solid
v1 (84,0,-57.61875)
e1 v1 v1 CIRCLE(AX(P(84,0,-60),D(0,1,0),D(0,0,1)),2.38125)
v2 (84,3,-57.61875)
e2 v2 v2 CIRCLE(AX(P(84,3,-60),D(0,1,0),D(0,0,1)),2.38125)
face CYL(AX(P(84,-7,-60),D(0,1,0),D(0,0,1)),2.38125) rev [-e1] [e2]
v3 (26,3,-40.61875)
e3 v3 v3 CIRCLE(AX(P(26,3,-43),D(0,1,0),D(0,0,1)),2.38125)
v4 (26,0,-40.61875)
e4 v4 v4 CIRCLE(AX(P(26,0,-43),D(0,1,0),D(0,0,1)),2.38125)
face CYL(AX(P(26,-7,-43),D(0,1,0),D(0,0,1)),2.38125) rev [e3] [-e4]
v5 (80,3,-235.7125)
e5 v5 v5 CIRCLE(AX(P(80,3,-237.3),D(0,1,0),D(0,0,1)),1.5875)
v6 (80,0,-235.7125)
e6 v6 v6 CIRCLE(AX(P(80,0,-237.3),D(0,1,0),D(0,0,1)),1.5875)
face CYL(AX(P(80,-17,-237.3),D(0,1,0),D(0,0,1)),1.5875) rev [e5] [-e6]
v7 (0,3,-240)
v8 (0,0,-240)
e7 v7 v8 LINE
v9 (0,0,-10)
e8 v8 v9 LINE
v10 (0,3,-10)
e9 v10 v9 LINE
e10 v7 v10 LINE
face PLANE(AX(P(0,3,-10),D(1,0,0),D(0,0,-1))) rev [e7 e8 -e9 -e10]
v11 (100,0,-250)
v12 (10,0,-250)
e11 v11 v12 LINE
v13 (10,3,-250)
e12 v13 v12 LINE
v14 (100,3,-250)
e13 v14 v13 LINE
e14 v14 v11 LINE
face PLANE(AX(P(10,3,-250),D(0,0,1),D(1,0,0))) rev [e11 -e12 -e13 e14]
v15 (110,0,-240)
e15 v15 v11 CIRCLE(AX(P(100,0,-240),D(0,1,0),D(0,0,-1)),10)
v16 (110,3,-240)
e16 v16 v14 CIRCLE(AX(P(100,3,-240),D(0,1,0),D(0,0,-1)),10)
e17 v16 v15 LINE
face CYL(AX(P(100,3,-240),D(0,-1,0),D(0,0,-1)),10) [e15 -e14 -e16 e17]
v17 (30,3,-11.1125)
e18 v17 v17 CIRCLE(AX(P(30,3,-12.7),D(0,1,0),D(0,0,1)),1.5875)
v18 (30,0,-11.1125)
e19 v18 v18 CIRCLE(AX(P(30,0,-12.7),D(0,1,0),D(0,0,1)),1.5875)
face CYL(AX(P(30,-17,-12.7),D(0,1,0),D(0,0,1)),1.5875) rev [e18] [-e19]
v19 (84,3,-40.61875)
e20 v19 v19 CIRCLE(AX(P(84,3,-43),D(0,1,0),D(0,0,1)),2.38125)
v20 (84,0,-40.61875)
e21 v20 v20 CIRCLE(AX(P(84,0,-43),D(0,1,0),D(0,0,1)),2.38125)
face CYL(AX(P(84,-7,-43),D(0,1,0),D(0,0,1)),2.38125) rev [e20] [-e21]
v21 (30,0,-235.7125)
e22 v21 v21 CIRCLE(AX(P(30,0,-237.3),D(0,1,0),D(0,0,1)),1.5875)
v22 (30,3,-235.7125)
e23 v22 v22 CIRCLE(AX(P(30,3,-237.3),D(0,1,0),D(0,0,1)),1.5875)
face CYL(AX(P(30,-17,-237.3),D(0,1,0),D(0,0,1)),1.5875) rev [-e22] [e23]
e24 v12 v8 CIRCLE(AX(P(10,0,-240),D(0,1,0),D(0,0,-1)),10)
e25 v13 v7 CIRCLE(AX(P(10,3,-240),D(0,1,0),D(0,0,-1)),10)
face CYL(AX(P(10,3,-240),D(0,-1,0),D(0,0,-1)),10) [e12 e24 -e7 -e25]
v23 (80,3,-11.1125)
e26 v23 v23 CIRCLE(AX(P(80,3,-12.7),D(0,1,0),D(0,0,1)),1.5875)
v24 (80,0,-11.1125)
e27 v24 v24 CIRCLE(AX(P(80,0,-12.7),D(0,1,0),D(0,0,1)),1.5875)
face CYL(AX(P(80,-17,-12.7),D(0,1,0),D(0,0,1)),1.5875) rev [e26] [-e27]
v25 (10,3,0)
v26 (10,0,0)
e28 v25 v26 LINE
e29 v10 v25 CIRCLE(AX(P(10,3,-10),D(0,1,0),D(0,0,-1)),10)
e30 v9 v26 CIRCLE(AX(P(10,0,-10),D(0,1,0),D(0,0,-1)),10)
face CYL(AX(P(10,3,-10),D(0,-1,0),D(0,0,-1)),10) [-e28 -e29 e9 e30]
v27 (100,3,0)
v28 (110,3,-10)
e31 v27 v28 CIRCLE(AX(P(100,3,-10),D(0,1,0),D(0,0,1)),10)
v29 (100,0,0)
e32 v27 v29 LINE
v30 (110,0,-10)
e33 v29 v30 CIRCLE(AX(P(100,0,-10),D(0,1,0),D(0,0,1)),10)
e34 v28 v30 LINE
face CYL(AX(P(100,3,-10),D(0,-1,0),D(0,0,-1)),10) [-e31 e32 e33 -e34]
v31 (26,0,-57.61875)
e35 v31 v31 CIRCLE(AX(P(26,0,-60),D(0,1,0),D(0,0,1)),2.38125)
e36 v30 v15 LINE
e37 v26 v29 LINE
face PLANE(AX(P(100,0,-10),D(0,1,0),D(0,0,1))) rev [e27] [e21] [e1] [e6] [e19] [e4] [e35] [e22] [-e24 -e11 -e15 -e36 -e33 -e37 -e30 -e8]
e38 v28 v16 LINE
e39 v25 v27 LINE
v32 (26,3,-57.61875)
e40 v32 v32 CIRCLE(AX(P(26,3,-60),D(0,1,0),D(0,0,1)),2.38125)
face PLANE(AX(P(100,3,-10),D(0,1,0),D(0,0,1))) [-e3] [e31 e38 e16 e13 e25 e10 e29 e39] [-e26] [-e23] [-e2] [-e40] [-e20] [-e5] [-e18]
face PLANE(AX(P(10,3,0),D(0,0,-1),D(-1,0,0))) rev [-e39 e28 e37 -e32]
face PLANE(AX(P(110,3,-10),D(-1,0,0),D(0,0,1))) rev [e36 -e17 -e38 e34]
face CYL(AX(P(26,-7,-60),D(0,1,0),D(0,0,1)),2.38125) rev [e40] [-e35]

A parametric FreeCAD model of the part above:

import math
import FreeCAD as App
import Part
import Sketcher

V = App.Vector

doc = App.newDocument("Part")
params = doc.addObject("Spreadsheet::Sheet", "Params")
for row, (alias, value) in enumerate([
    ("sketch1_radius", "10 mm"),
    ("sketch1_width", "90 mm"),
    ("sketch1_height", "230 mm"),
    ("pad1_length", "3 mm"),
    ("pocket1_length", "20 mm"),
    ("pocket2_length", "10 mm"),
], start=1):
    params.set(f"A{row}", alias)
    params.set(f"B{row}", "=" + value)
    params.setAlias(f"B{row}", alias)

body = doc.addObject("PartDesign::Body", "Body")

# Sketch on XZ plane
sketch1 = body.newObject("Sketcher::SketchObject", "Sketch")
sketch1.AttachmentSupport = (doc.getObject("XZ_Plane"), [""])
sketch1.MapMode = "FlatFace"
sketch1.addGeometry([
    Part.LineSegment(V(10, 0, 0), V(100, 0, 0)),  # 0
    Part.ArcOfCircle(Part.Circle(V(100, -10, 0), V(0, 0, 1), 10), math.radians(0), math.radians(90)),  # 1
    Part.LineSegment(V(110, -10, 0), V(110, -240, 0)),  # 2
    Part.ArcOfCircle(Part.Circle(V(100, -240, 0), V(0, 0, 1), 10), math.radians(-90), math.radians(0)),  # 3
    Part.LineSegment(V(100, -250, 0), V(10, -250, 0)),  # 4
    Part.ArcOfCircle(Part.Circle(V(10, -240, 0), V(0, 0, 1), 10), math.radians(180), math.radians(270)),  # 5
    Part.LineSegment(V(0, -240, 0), V(0, -10, 0)),  # 6
    Part.ArcOfCircle(Part.Circle(V(10, -10, 0), V(0, 0, 1), 10), math.radians(90), math.radians(180)),  # 7
], False)
sketch1.addConstraint([
    Sketcher.Constraint("Tangent", 0, 2, 1, 2),
    Sketcher.Constraint("Tangent", 1, 1, 2, 1),
    Sketcher.Constraint("Tangent", 2, 2, 3, 2),
    Sketcher.Constraint("Tangent", 3, 1, 4, 1),
    Sketcher.Constraint("Tangent", 4, 2, 5, 2),
    Sketcher.Constraint("Tangent", 5, 1, 6, 1),
    Sketcher.Constraint("Tangent", 6, 2, 7, 2),
    Sketcher.Constraint("Tangent", 7, 1, 0, 1),
    Sketcher.Constraint("Horizontal", 0),
    Sketcher.Constraint("Vertical", 2),
    Sketcher.Constraint("Horizontal", 4),
    Sketcher.Constraint("Vertical", 6),
    Sketcher.Constraint("Equal", 1, 3),
    Sketcher.Constraint("Equal", 3, 5),
    Sketcher.Constraint("Equal", 5, 7),
    Sketcher.Constraint("PointOnObject", 0, 2, -1),
    Sketcher.Constraint("PointOnObject", 5, 1, -2),
    Sketcher.Constraint("Radius", 1, 10.0),
    Sketcher.Constraint("DistanceX", 0, 1, 0, 2, 90.0),
    Sketcher.Constraint("DistanceY", 2, 2, 2, 1, 230.0),
])
sketch1.setExpression("Constraints[17]", "Params.sketch1_radius")
sketch1.setExpression("Constraints[18]", "Params.sketch1_width")
sketch1.setExpression("Constraints[19]", "Params.sketch1_height")
pad1 = body.newObject("PartDesign::Pad", "Pad")
pad1.Profile = sketch1
pad1.setExpression("Length", "Params.pad1_length")
pad1.Reversed = True

# Sketch on XZ plane
sketch2 = body.newObject("Sketcher::SketchObject", "Sketch001")
sketch2.AttachmentSupport = (doc.getObject("XZ_Plane"), [""])
sketch2.MapMode = "FlatFace"
sketch2.AttachmentOffset = App.Placement(V(0, 0, -3), App.Rotation())
sketch2.addGeometry([
    Part.Circle(V(30, -237.3, 0), V(0, 0, 1), 1.5875),
    Part.Circle(V(80, -237.3, 0), V(0, 0, 1), 1.5875),
    Part.Circle(V(30, -12.7, 0), V(0, 0, 1), 1.5875),
    Part.Circle(V(80, -12.7, 0), V(0, 0, 1), 1.5875),
], False)
sketch2.addConstraint([
    Sketcher.Constraint("Equal", 0, 1),
    Sketcher.Constraint("Equal", 1, 2),
    Sketcher.Constraint("Equal", 2, 3),
    Sketcher.Constraint("Horizontal", 0, 3, 1, 3),
    Sketcher.Constraint("Horizontal", 2, 3, 3, 3),
    Sketcher.Constraint("Vertical", 0, 3, 2, 3),
    Sketcher.Constraint("Vertical", 1, 3, 3, 3),
    Sketcher.Constraint("Diameter", 0, 3.175),
    Sketcher.Constraint("DistanceX", -1, 1, 0, 3, 30.0),
    Sketcher.Constraint("DistanceX", -1, 1, 1, 3, 80.0),
    Sketcher.Constraint("DistanceY", 0, 3, -1, 1, 237.3),
    Sketcher.Constraint("DistanceY", 2, 3, -1, 1, 12.7),
])
pocket1 = body.newObject("PartDesign::Pocket", "Pocket")
pocket1.Profile = sketch2
pocket1.setExpression("Length", "Params.pocket1_length")
pocket1.Reversed = True

# Sketch on XZ plane
sketch3 = body.newObject("Sketcher::SketchObject", "Sketch002")
sketch3.AttachmentSupport = (doc.getObject("XZ_Plane"), [""])
sketch3.MapMode = "FlatFace"
sketch3.AttachmentOffset = App.Placement(V(0, 0, -3), App.Rotation())
sketch3.addGeometry([
    Part.Circle(V(26, -60, 0), V(0, 0, 1), 2.38125),
    Part.Circle(V(84, -60, 0), V(0, 0, 1), 2.38125),
    Part.Circle(V(26, -43, 0), V(0, 0, 1), 2.38125),
    Part.Circle(V(84, -43, 0), V(0, 0, 1), 2.38125),
], False)
sketch3.addConstraint([
    Sketcher.Constraint("Equal", 0, 1),
    Sketcher.Constraint("Equal", 1, 2),
    Sketcher.Constraint("Equal", 2, 3),
    Sketcher.Constraint("Horizontal", 0, 3, 1, 3),
    Sketcher.Constraint("Horizontal", 2, 3, 3, 3),
    Sketcher.Constraint("Vertical", 0, 3, 2, 3),
    Sketcher.Constraint("Vertical", 1, 3, 3, 3),
    Sketcher.Constraint("DistanceX", -1, 1, 0, 3, 26.0),
    Sketcher.Constraint("DistanceY", 0, 3, -1, 1, 60.0),
    Sketcher.Constraint("DistanceX", -1, 1, 1, 3, 84.0),
    Sketcher.Constraint("DistanceY", 2, 3, -1, 1, 43.0),
    Sketcher.Constraint("Diameter", 0, 4.7625),
])
pocket2 = body.newObject("PartDesign::Pocket", "Pocket001")
pocket2.Profile = sketch3
pocket2.setExpression("Length", "Params.pocket2_length")
pocket2.Reversed = True

doc.recompute()
